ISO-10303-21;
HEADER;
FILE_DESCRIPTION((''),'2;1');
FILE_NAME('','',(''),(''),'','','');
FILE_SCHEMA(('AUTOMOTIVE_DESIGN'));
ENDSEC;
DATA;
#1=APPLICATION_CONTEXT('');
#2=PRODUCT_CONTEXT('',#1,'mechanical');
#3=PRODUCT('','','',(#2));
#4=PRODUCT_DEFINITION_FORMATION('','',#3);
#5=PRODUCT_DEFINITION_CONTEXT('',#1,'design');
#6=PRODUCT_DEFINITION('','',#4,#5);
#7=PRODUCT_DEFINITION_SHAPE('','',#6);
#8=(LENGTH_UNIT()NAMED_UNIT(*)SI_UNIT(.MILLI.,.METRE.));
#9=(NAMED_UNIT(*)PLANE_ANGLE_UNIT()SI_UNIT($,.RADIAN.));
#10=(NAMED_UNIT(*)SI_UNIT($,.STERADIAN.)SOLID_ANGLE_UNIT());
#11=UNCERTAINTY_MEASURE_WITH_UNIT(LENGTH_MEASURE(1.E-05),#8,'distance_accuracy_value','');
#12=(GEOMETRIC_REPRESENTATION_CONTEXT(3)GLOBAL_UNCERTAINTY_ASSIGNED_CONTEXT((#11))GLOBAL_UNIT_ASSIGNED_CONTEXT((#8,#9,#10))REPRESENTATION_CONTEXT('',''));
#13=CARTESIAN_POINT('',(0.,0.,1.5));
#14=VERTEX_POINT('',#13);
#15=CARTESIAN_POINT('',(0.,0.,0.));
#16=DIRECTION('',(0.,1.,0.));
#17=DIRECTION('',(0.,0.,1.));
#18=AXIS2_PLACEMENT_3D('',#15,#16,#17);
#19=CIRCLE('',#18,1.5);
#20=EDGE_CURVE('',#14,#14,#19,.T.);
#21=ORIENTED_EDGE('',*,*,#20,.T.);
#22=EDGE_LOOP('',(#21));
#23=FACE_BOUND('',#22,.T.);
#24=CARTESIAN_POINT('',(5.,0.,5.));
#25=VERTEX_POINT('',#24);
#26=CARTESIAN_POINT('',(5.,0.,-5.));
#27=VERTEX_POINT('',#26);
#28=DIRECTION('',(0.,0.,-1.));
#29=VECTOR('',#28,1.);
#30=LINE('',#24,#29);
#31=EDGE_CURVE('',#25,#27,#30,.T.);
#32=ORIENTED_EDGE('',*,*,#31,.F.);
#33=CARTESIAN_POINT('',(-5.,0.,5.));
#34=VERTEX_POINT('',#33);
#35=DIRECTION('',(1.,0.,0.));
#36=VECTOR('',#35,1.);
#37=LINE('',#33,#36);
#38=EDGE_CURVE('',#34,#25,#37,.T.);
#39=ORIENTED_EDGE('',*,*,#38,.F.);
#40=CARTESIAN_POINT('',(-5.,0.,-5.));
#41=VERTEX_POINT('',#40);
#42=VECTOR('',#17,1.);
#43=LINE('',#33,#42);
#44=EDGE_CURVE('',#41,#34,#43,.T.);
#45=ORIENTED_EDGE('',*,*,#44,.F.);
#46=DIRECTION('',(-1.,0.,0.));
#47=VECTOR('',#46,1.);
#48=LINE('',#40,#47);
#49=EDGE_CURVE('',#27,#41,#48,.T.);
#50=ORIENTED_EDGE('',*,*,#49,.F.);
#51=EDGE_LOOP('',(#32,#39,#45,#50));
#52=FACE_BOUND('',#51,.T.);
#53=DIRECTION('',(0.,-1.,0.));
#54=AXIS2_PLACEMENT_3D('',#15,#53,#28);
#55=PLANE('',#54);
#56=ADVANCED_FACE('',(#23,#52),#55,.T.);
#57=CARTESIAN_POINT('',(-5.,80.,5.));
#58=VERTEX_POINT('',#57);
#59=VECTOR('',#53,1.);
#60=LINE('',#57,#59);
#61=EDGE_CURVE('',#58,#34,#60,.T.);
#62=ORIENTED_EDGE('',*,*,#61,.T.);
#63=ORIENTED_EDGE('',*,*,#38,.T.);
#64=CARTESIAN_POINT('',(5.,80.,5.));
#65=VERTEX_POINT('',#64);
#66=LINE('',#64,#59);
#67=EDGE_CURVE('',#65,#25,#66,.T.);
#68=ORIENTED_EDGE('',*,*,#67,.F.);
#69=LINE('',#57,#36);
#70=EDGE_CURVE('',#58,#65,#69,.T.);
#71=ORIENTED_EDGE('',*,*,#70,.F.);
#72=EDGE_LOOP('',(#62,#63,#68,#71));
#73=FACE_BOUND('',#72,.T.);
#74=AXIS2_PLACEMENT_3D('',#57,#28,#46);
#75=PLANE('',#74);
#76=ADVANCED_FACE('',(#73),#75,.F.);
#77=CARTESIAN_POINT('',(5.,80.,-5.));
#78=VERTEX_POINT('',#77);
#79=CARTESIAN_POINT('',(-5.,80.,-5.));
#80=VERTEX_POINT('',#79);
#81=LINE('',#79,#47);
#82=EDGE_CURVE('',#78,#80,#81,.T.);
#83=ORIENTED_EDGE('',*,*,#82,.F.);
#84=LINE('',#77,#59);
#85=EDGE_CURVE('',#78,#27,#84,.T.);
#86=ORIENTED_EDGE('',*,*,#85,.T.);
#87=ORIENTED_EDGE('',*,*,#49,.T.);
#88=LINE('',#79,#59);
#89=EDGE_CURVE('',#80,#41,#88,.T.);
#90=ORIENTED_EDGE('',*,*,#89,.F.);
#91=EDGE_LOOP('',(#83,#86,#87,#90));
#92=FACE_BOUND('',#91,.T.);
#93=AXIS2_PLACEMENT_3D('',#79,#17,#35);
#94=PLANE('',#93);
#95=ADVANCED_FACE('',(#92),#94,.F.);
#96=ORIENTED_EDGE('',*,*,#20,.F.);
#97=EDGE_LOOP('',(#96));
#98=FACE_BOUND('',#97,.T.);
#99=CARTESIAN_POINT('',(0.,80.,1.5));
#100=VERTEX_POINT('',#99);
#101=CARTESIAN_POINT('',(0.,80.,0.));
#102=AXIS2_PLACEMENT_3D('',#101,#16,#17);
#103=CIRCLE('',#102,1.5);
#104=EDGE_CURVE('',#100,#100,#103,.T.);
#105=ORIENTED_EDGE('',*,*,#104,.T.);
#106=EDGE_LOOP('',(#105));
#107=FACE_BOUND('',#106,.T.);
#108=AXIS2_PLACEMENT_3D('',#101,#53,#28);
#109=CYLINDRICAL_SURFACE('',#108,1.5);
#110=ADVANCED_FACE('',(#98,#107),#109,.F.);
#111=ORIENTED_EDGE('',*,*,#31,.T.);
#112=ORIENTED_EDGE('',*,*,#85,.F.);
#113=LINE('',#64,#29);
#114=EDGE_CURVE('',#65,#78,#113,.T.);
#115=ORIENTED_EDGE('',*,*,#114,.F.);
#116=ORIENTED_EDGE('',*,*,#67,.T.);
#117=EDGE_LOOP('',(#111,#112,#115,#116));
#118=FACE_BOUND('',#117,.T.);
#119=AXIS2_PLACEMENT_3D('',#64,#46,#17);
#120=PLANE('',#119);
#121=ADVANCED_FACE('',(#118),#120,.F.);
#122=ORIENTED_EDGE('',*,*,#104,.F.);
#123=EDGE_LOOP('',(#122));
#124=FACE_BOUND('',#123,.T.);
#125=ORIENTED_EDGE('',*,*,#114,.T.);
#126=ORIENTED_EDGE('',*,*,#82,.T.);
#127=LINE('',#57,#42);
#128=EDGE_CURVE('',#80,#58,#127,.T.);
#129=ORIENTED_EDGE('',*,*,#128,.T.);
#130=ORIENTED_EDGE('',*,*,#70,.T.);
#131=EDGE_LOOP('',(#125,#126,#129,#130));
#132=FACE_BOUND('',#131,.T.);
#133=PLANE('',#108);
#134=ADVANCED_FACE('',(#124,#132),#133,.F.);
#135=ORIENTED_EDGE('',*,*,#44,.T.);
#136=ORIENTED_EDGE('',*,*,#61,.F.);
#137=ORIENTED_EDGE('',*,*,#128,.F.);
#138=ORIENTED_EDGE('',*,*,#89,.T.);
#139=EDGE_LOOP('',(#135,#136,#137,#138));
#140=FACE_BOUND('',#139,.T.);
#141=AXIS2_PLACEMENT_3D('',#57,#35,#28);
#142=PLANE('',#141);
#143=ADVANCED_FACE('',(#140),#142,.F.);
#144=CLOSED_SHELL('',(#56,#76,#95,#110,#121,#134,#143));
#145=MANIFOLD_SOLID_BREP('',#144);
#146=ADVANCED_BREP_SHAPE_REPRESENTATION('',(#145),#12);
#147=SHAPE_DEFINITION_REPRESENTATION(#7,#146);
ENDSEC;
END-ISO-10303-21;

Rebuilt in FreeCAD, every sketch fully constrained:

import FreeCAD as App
import Part
import Sketcher
from FreeCAD import Vector

doc = App.newDocument("Part")
body = doc.addObject("PartDesign::Body", "Body")

# Sketch on XZ plane
sketch1 = body.newObject("Sketcher::SketchObject", "Sketch")
sketch1.AttachmentSupport = (doc.getObject("XZ_Plane"), [""])
sketch1.MapMode = "FlatFace"
sketch1.addGeometry(Part.LineSegment(Vector(-5, -5, 0), Vector(-5, 5, 0)), False)
sketch1.addGeometry(Part.LineSegment(Vector(-5, 5, 0), Vector(5, 5, 0)), False)
sketch1.addGeometry(Part.LineSegment(Vector(5, 5, 0), Vector(5, -5, 0)), False)
sketch1.addGeometry(Part.LineSegment(Vector(5, -5, 0), Vector(-5, -5, 0)), False)
sketch1.addConstraint(Sketcher.Constraint("Coincident", 0, 2, 1, 1))
sketch1.addConstraint(Sketcher.Constraint("Coincident", 1, 2, 2, 1))
sketch1.addConstraint(Sketcher.Constraint("Coincident", 2, 2, 3, 1))
sketch1.addConstraint(Sketcher.Constraint("Coincident", 3, 2, 0, 1))
sketch1.addConstraint(Sketcher.Constraint("Vertical", 0))
sketch1.addConstraint(Sketcher.Constraint("Horizontal", 1))
sketch1.addConstraint(Sketcher.Constraint("Vertical", 2))
sketch1.addConstraint(Sketcher.Constraint("Horizontal", 3))
sketch1.addConstraint(Sketcher.Constraint("Symmetric", 0, 2, 2, 2, -1, 1))
sketch1.addConstraint(Sketcher.Constraint("Equal", 3, 0))
sketch1.addConstraint(Sketcher.Constraint("DistanceX", 1, 1, 1, 2, 10.0))
pad1 = body.newObject("PartDesign::Pad", "Pad")
pad1.Profile = sketch1
pad1.Length = 80
pad1.Reversed = True

# Sketch on XZ plane
sketch2 = body.newObject("Sketcher::SketchObject", "Sketch001")
sketch2.AttachmentSupport = (doc.getObject("XZ_Plane"), [""])
sketch2.MapMode = "FlatFace"
sketch2.addGeometry(Part.Circle(Vector(0, 0, 0), Vector(0, 0, 1), 1.5), False)
sketch2.addConstraint(Sketcher.Constraint("Coincident", 0, 3, -1, 1))
sketch2.addConstraint(Sketcher.Constraint("Diameter", 0, 3.0))
pocket1 = body.newObject("PartDesign::Pocket", "Pocket")
pocket1.Profile = sketch2
pocket1.Type = "ThroughAll"

doc.recompute()
